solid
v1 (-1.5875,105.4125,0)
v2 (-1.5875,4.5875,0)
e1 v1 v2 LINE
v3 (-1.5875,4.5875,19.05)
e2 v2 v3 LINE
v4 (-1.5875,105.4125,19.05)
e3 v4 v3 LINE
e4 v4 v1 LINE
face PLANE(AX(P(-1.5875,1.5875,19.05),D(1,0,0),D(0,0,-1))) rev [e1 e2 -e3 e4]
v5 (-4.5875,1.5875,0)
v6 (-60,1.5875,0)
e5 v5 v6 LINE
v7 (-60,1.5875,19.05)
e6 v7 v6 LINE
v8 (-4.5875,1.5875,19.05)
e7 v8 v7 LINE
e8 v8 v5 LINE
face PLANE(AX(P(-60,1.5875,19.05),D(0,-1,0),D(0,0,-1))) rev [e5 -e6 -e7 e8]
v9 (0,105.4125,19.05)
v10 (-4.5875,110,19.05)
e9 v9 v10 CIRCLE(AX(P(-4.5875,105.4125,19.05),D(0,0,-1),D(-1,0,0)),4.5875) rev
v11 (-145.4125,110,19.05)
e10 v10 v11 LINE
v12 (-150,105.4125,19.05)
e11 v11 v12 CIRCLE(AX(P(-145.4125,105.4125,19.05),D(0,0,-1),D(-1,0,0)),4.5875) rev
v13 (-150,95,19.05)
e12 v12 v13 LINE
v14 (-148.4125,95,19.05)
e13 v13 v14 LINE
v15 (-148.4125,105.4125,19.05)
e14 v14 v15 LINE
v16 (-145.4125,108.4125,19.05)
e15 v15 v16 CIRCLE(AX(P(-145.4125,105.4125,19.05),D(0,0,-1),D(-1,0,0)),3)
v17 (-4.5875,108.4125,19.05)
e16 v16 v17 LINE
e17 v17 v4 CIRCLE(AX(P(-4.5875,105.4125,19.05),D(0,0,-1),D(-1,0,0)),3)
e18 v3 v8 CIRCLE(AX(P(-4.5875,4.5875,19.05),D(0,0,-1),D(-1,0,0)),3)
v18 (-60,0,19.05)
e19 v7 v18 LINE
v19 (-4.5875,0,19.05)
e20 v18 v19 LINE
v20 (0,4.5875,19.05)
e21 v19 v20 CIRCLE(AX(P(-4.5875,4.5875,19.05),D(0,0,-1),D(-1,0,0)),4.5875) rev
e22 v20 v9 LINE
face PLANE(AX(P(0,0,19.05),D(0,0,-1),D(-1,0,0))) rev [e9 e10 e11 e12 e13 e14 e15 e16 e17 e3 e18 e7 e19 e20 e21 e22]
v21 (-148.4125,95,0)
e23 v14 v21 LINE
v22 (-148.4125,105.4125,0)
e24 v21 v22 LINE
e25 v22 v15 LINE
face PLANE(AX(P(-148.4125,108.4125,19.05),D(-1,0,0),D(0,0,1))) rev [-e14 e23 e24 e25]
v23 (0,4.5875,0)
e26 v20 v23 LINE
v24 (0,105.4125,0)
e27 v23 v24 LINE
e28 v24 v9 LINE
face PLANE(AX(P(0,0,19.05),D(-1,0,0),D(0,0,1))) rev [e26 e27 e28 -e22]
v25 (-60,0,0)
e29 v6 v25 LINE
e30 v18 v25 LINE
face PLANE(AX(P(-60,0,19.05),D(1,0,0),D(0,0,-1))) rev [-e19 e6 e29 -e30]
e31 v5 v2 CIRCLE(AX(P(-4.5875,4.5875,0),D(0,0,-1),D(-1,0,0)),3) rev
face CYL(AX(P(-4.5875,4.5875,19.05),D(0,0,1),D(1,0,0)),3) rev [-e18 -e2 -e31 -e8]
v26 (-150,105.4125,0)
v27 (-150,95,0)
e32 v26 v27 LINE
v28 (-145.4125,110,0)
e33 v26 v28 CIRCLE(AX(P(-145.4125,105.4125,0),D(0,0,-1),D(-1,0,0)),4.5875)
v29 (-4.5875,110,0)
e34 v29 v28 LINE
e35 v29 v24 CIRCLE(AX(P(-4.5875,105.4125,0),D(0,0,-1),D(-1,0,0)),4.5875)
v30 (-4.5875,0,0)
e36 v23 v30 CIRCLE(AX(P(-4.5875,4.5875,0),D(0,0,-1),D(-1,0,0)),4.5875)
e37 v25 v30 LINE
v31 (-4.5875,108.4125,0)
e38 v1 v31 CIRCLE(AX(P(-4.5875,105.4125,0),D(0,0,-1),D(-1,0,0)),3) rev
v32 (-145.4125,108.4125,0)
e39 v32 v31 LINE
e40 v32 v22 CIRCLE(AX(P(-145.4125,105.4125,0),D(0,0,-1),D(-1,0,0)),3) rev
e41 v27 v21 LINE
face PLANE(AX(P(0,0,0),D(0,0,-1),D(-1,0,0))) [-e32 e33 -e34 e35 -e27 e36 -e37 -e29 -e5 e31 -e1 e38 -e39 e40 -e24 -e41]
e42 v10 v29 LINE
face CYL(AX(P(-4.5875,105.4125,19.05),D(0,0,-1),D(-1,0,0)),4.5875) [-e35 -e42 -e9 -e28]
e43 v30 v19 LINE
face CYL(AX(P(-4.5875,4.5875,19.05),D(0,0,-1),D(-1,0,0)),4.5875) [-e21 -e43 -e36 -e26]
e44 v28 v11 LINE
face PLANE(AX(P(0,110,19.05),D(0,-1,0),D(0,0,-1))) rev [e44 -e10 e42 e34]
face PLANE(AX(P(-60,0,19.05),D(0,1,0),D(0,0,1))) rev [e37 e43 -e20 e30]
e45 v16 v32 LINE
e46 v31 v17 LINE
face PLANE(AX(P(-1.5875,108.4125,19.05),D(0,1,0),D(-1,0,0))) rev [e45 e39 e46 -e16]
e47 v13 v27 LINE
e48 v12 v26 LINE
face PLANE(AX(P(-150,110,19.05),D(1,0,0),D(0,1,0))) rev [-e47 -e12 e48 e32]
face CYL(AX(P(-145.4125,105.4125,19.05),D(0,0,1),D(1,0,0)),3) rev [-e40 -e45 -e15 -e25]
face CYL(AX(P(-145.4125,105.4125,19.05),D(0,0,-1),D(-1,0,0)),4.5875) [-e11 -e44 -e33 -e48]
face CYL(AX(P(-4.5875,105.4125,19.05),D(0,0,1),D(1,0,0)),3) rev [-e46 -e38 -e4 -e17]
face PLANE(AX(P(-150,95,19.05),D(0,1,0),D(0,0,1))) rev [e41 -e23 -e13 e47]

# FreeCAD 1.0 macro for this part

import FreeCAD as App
import Part
import Sketcher

V = App.Vector
Q = App.Units.Quantity


def edges_at(feature, points):
    """Names of the edges that pass closest to the given points."""
    edges = feature.Shape.Edges
    near = lambda p: min(range(len(edges)), key=lambda i: edges[i].distToShape(Part.Vertex(*p))[0])
    return sorted({f"Edge{near(p) + 1}" for p in points})


def add_polygon(sketch, points):
    """Adds a closed chain of lines whose ends are joined by coincident constraints."""
    first, n = sketch.GeometryCount, len(points)
    for a, b in zip(points, points[1:] + points[:1]):
        sketch.addGeometry(Part.LineSegment(App.Vector(*a, 0), App.Vector(*b, 0)), False)
    for i in range(n):
        sketch.addConstraint(Sketcher.Constraint("Coincident", first + i, 2, first + (i + 1) % n, 1))

doc = App.newDocument("Part")
body = doc.addObject("PartDesign::Body", "Body")

sketch1 = body.newObject("Sketcher::SketchObject", "Sketch")
sketch1.AttachmentSupport = (doc.getObject("XY_Plane"), [""])
sketch1.MapMode = "FlatFace"
add_polygon(sketch1, [(-60, 0), (0, 0), (0, 110), (-150, 110), (-150, 95), (-148.4, 95), (-148.4, 108.4), (-1.6, 108.4), (-1.6, 1.6), (-60, 1.6)])
sketch1.addConstraint(Sketcher.Constraint("Horizontal", 0))
sketch1.addConstraint(Sketcher.Constraint("Vertical", 1))
sketch1.addConstraint(Sketcher.Constraint("Horizontal", 2))
sketch1.addConstraint(Sketcher.Constraint("Vertical", 3))
sketch1.addConstraint(Sketcher.Constraint("Horizontal", 4))
sketch1.addConstraint(Sketcher.Constraint("Vertical", 5))
sketch1.addConstraint(Sketcher.Constraint("Horizontal", 6))
sketch1.addConstraint(Sketcher.Constraint("Vertical", 7))
sketch1.addConstraint(Sketcher.Constraint("Horizontal", 8))
sketch1.addConstraint(Sketcher.Constraint("Vertical", 9))
sketch1.addConstraint(Sketcher.Constraint("Coincident", 0, 2, -1, 1))
sketch1.addConstraint(Sketcher.Constraint("Equal", 4, 9))
sketch1.addConstraint(Sketcher.Constraint("DistanceX", 0, 1, 0, 2, Q("60 mm")))
sketch1.addConstraint(Sketcher.Constraint("DistanceX", 2, 2, 2, 1, Q("150 mm")))
sketch1.addConstraint(Sketcher.Constraint("DistanceY", 1, 1, 1, 2, Q("110 mm")))
sketch1.addConstraint(Sketcher.Constraint("DistanceY", 3, 2, 3, 1, Q("15 mm")))
sketch1.addConstraint(Sketcher.Constraint("DistanceX", 6, 1, 6, 2, Q("146.825 mm")))
sketch1.addConstraint(Sketcher.Constraint("DistanceY", 7, 2, 7, 1, Q("106.825 mm")))
sketch1.addConstraint(Sketcher.Constraint("DistanceX", 4, 1, 4, 2, Q("1.5875 mm")))
pad1 = body.newObject("PartDesign::Pad", "Pad")
pad1.Profile = sketch1
pad1.Length = 19.05
doc.recompute()

fillet = body.newObject("PartDesign::Fillet", "Fillet")
fillet.Base = (pad1, edges_at(pad1, [(-1.587, 1.587, 9.525), (-1.587, 108.412, 9.525), (-148.412, 108.412, 9.525)]))
fillet.Radius = 3
doc.recompute()

fillet2 = body.newObject("PartDesign::Fillet", "Fillet001")
fillet2.Base = (fillet, edges_at(fillet, [(-150, 110, 9.525), (0, 110, 9.525), (0, 0, 9.525)]))
fillet2.Radius = 4.5875

doc.recompute()
